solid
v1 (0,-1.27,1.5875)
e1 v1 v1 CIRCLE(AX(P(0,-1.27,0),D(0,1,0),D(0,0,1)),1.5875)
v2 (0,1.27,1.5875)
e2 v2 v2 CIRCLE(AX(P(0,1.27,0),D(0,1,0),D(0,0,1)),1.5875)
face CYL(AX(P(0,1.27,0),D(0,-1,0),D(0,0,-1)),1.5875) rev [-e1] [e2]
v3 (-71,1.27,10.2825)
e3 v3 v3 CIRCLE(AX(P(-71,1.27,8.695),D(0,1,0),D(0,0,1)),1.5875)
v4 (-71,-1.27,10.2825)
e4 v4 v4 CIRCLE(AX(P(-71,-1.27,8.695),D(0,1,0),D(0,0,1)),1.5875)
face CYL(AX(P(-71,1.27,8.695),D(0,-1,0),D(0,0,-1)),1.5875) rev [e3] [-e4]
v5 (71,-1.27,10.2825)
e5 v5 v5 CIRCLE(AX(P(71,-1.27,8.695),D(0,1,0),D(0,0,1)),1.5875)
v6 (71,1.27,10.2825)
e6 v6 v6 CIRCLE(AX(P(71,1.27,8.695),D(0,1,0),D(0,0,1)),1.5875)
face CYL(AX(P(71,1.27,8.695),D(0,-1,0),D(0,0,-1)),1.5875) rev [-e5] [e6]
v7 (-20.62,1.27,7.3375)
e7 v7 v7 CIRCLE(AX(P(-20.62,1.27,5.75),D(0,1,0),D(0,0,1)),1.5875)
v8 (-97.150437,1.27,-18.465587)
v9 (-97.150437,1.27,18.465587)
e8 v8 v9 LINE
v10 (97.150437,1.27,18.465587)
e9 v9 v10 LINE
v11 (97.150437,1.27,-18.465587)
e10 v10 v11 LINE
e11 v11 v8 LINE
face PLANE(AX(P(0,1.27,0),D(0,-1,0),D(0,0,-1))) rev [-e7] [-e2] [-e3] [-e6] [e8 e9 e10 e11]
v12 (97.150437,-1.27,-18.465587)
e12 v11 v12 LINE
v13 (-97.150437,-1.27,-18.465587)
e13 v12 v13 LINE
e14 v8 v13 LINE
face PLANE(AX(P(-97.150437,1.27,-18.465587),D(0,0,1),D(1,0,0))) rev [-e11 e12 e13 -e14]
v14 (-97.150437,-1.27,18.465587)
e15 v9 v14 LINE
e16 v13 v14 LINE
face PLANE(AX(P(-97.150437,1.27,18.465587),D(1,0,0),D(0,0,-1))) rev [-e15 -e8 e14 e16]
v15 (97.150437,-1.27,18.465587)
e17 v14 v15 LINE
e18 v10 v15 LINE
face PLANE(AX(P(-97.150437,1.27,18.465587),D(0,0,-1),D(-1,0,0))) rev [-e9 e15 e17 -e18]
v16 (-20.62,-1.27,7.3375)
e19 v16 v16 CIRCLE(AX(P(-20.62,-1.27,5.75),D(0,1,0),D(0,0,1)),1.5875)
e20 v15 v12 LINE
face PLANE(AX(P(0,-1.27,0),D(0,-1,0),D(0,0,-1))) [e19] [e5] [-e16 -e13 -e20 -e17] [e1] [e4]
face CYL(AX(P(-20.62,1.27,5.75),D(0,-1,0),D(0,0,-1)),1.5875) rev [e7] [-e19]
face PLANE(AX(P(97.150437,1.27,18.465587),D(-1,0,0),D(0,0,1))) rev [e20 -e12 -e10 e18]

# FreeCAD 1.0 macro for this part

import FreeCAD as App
import Part
import Sketcher
from FreeCAD import Vector
Q = App.Units.Quantity

doc = App.newDocument("Part")
params = doc.addObject("Spreadsheet::Sheet", "Params")
for row, (alias, value) in enumerate([
    ("sketch1_diameter", "0.125 in"),
    ("pad1_length", "0.1 in"),
], start=1):
    params.set(f"A{row}", alias)
    params.set(f"B{row}", "=" + value)
    params.setAlias(f"B{row}", alias)

body = doc.addObject("PartDesign::Body", "Body")

# Sketch on XZ plane
sketch1 = body.newObject("Sketcher::SketchObject", "Sketch")
sketch1.AttachmentSupport = (doc.getObject("XZ_Plane"), [""])
sketch1.MapMode = "FlatFace"
sketch1.addGeometry([
    Part.LineSegment(Vector(-97.2, -18.5, 0), Vector(-97.2, 18.5, 0)),  # 0
    Part.LineSegment(Vector(-97.2, 18.5, 0), Vector(97.2, 18.5, 0)),  # 1
    Part.LineSegment(Vector(97.2, 18.5, 0), Vector(97.2, -18.5, 0)),  # 2
    Part.LineSegment(Vector(97.2, -18.5, 0), Vector(-97.2, -18.5, 0)),  # 3
    Part.Circle(Vector(-71, 8.7, 0), Vector(0, 0, 1), 1.6),  # 4
    Part.Circle(Vector(-20.6, 5.8, 0), Vector(0, 0, 1), 1.6),  # 5
    Part.Circle(Vector(71, 8.7, 0), Vector(0, 0, 1), 1.6),  # 6
    Part.Circle(Vector(0, 0, 0), Vector(0, 0, 1), 1.6),  # 7
], False)
sketch1.addConstraint([
    Sketcher.Constraint("Coincident", 0, 2, 1, 1),
    Sketcher.Constraint("Coincident", 1, 2, 2, 1),
    Sketcher.Constraint("Coincident", 2, 2, 3, 1),
    Sketcher.Constraint("Coincident", 3, 2, 0, 1),
    Sketcher.Constraint("Vertical", 0),
    Sketcher.Constraint("Horizontal", 1),
    Sketcher.Constraint("Vertical", 2),
    Sketcher.Constraint("Horizontal", 3),
    Sketcher.Constraint("Coincident", 7, 3, -1, 1),
    Sketcher.Constraint("Equal", 4, 5),
    Sketcher.Constraint("Equal", 5, 6),
    Sketcher.Constraint("Equal", 6, 7),
    Sketcher.Constraint("Symmetric", 0, 2, 2, 2, -1, 1),
    Sketcher.Constraint("Symmetric", 4, 3, 6, 3, -2),
    Sketcher.Constraint("Diameter", 4, Q("0.125 in")),
    Sketcher.Constraint("DistanceX", 4, 3, -1, 1, 71.0),
    Sketcher.Constraint("DistanceY", -1, 1, 4, 3, 8.695),
    Sketcher.Constraint("DistanceX", 5, 3, -1, 1, 20.62),
    Sketcher.Constraint("DistanceY", -1, 1, 5, 3, 5.75),
    Sketcher.Constraint("DistanceX", 1, 1, 1, 2, 194.300875),
    Sketcher.Constraint("DistanceY", 0, 1, 0, 2, 36.931173),
])
sketch1.setExpression("Constraints[14]", "Params.sketch1_diameter")
pad1 = body.newObject("PartDesign::Pad", "Pad")
pad1.Profile = sketch1
pad1.setExpression("Length", "Params.pad1_length")
pad1.Midplane = True

doc.recompute()
